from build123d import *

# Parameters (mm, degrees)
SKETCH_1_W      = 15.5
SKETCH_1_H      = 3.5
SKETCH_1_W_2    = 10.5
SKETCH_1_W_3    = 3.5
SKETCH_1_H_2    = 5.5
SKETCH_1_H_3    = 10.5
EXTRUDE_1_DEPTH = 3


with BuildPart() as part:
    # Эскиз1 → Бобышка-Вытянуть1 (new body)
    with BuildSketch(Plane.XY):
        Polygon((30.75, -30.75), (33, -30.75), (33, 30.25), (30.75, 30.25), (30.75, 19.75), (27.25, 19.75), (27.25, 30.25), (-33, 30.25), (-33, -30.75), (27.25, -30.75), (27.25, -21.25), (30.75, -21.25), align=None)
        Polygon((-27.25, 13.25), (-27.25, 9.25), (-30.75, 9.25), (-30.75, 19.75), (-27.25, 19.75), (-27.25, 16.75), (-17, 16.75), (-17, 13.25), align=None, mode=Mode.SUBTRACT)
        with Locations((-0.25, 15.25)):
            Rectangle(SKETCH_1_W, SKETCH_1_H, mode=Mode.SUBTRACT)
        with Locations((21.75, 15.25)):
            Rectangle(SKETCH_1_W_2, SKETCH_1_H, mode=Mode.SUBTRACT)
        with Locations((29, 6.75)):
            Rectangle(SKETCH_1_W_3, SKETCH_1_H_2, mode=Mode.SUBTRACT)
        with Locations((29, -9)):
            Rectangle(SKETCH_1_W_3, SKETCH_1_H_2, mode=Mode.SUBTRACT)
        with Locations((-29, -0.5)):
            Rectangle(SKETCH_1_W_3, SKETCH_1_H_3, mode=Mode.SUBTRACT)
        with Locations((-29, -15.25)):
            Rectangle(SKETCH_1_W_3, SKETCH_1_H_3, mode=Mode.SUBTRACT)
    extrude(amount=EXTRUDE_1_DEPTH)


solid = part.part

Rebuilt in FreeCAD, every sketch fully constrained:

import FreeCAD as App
import Part
import Sketcher

V = App.Vector
Q = App.Units.Quantity


def add_polygon(sketch, points):
    """Adds a closed chain of lines whose ends are joined by coincident constraints."""
    first, n = sketch.GeometryCount, len(points)
    for a, b in zip(points, points[1:] + points[:1]):
        sketch.addGeometry(Part.LineSegment(App.Vector(*a, 0), App.Vector(*b, 0)), False)
    for i in range(n):
        sketch.addConstraint(Sketcher.Constraint("Coincident", first + i, 2, first + (i + 1) % n, 1))

doc = App.newDocument("Part")
params = doc.addObject("Spreadsheet::Sheet", "Params")
for row, (alias, value) in enumerate([
    ("sketch1_height", "61 mm"),
    ("sketch1_height2", "4 mm"),
    ("sketch1_height3", "3 mm"),
    ("sketch1_width", "3.5 mm"),
    ("sketch1_width2", "15.5 mm"),
    ("pad1_length", "3 mm"),
], start=1):
    params.set(f"A{row}", alias)
    params.set(f"B{row}", "=" + value)
    params.setAlias(f"B{row}", alias)

body = doc.addObject("PartDesign::Body", "Body")

# Sketch on XY plane
sketch1 = body.newObject("Sketcher::SketchObject", "Sketch")
sketch1.AttachmentSupport = (doc.getObject("XY_Plane"), [""])
sketch1.MapMode = "FlatFace"
add_polygon(sketch1, [(30.8, -30.8), (33, -30.8), (33, 30.2), (30.8, 30.2), (30.8, 19.8), (27.2, 19.8), (27.2, 30.2), (-33, 30.2), (-33, -30.8), (27.2, -30.8), (27.2, -21.2), (30.8, -21.2)])  # lines 0-11
add_polygon(sketch1, [(-27.2, -20.5), (-30.8, -20.5), (-30.8, -10), (-27.2, -10)])  # lines 12-15
add_polygon(sketch1, [(-27.2, -5.8), (-30.8, -5.8), (-30.8, 4.8), (-27.2, 4.8)])  # lines 16-19
add_polygon(sketch1, [(30.8, -11.8), (27.2, -11.8), (27.2, -6.2), (30.8, -6.2)])  # lines 20-23
add_polygon(sketch1, [(-17, 13.2), (-27.2, 13.2), (-27.2, 9.2), (-30.8, 9.2), (-30.8, 19.8), (-27.2, 19.8), (-27.2, 16.8), (-17, 16.8)])  # lines 24-31
add_polygon(sketch1, [(7.5, 13.5), (-8, 13.5), (-8, 17), (7.5, 17)])  # lines 32-35
add_polygon(sketch1, [(30.8, 4), (27.2, 4), (27.2, 9.5), (30.8, 9.5)])  # lines 36-39
add_polygon(sketch1, [(27, 13.5), (16.5, 13.5), (16.5, 17), (27, 17)])  # lines 40-43
sketch1.addConstraint([
    Sketcher.Constraint("Horizontal", 0),
    Sketcher.Constraint("Vertical", 1),
    Sketcher.Constraint("Horizontal", 2),
    Sketcher.Constraint("Vertical", 3),
    Sketcher.Constraint("Horizontal", 4),
    Sketcher.Constraint("Vertical", 5),
    Sketcher.Constraint("Horizontal", 6),
    Sketcher.Constraint("Vertical", 7),
    Sketcher.Constraint("Horizontal", 8),
    Sketcher.Constraint("Vertical", 9),
    Sketcher.Constraint("Horizontal", 10),
    Sketcher.Constraint("Vertical", 11),
    Sketcher.Constraint("Horizontal", 12),
    Sketcher.Constraint("Vertical", 13),
    Sketcher.Constraint("Horizontal", 14),
    Sketcher.Constraint("Vertical", 15),
    Sketcher.Constraint("Horizontal", 16),
    Sketcher.Constraint("Vertical", 17),
    Sketcher.Constraint("Horizontal", 18),
    Sketcher.Constraint("Vertical", 19),
    Sketcher.Constraint("Horizontal", 20),
    Sketcher.Constraint("Vertical", 21),
    Sketcher.Constraint("Horizontal", 22),
    Sketcher.Constraint("Vertical", 23),
    Sketcher.Constraint("Horizontal", 24),
    Sketcher.Constraint("Vertical", 25),
    Sketcher.Constraint("Horizontal", 26),
    Sketcher.Constraint("Vertical", 27),
    Sketcher.Constraint("Horizontal", 28),
    Sketcher.Constraint("Vertical", 29),
    Sketcher.Constraint("Horizontal", 30),
    Sketcher.Constraint("Vertical", 31),
    Sketcher.Constraint("Horizontal", 32),
    Sketcher.Constraint("Vertical", 33),
    Sketcher.Constraint("Horizontal", 34),
    Sketcher.Constraint("Vertical", 35),
    Sketcher.Constraint("Horizontal", 36),
    Sketcher.Constraint("Vertical", 37),
    Sketcher.Constraint("Horizontal", 38),
    Sketcher.Constraint("Vertical", 39),
    Sketcher.Constraint("Horizontal", 40),
    Sketcher.Constraint("Vertical", 41),
    Sketcher.Constraint("Horizontal", 42),
    Sketcher.Constraint("Vertical", 43),
    Sketcher.Constraint("Symmetric", 1, 2, 6, 2, -2),
    Sketcher.Constraint("Symmetric", 3, 2, 27, 2, -2),
    Sketcher.Constraint("Horizontal", 0, 2, 7, 2),
    Sketcher.Constraint("Horizontal", 35, 2, 40, 2),
    Sketcher.Constraint("Horizontal", 34, 2, 41, 2),
    Sketcher.Constraint("Vertical", 5, 2, 8, 2),
    Sketcher.Constraint("Vertical", 3, 2, 10, 2),
    Sketcher.Constraint("Vertical", 13, 2, 16, 2),
    Sketcher.Constraint("Vertical", 15, 2, 18, 2),
    Sketcher.Constraint("Vertical", 9, 2, 20, 2),
    Sketcher.Constraint("Vertical", 11, 2, 22, 2),
    Sketcher.Constraint("Vertical", 19, 2, 24, 2),
    Sketcher.Constraint("Vertical", 17, 2, 26, 2),
    Sketcher.Constraint("Vertical", 25, 2, 28, 2),
    Sketcher.Constraint("Vertical", 21, 2, 36, 2),
    Sketcher.Constraint("Vertical", 23, 2, 38, 2),
    Sketcher.Constraint("Equal", 10, 12),
    Sketcher.Constraint("Equal", 42, 3),
    Sketcher.Constraint("Equal", 5, 13),
    Sketcher.Constraint("Equal", 15, 17),
    Sketcher.Constraint("Equal", 19, 27),
    Sketcher.Constraint("Equal", 38, 31),
    Sketcher.Constraint("Equal", 31, 33),
    Sketcher.Constraint("Equal", 23, 37),
    Sketcher.Constraint("DistanceY", 1, 1, 1, 2, Q("61 mm")),
    Sketcher.Constraint("DistanceY", 25, 2, 25, 1, Q("4 mm")),
    Sketcher.Constraint("DistanceY", 29, 2, 29, 1, Q("3 mm")),
    Sketcher.Constraint("DistanceX", 4, 2, 4, 1, Q("3.5 mm")),
    Sketcher.Constraint("DistanceX", 32, 2, 32, 1, Q("15.5 mm")),
    Sketcher.Constraint("DistanceY", 9, 1, 9, 2, Q("9.5 mm")),
    Sketcher.Constraint("DistanceY", 21, 1, 21, 2, Q("5.5 mm")),
    Sketcher.Constraint("DistanceX", -1, 1, 0, 2, Q("33 mm")),
    Sketcher.Constraint("DistanceY", 13, 2, -1, 1, Q("10 mm")),
    Sketcher.Constraint("DistanceX", 30, 2, -1, 1, Q("17 mm")),
    Sketcher.Constraint("DistanceX", 32, 2, -1, 1, Q("8 mm")),
    Sketcher.Constraint("DistanceY", -1, 1, 33, 2, Q("17 mm")),
    Sketcher.Constraint("DistanceY", -1, 1, 36, 2, Q("4 mm")),
    Sketcher.Constraint("DistanceX", -1, 1, 42, 2, Q("27 mm")),
    Sketcher.Constraint("DistanceX", 12, 2, 9, 2, Q("58 mm")),
    Sketcher.Constraint("DistanceY", 7, 2, 16, 2, Q("25 mm")),
    Sketcher.Constraint("DistanceY", 8, 2, 20, 2, Q("19 mm")),
    Sketcher.Constraint("DistanceY", 0, 2, -1, 1, Q("30.75 mm")),
])
sketch1.setExpression("Constraints[112]", "Params.sketch1_height")
sketch1.setExpression("Constraints[113]", "Params.sketch1_height2")
sketch1.setExpression("Constraints[114]", "Params.sketch1_height3")
sketch1.setExpression("Constraints[115]", "Params.sketch1_width")
sketch1.setExpression("Constraints[116]", "Params.sketch1_width2")
pad1 = body.newObject("PartDesign::Pad", "Pad")
pad1.Profile = sketch1
pad1.setExpression("Length", "Params.pad1_length")

doc.recompute()
